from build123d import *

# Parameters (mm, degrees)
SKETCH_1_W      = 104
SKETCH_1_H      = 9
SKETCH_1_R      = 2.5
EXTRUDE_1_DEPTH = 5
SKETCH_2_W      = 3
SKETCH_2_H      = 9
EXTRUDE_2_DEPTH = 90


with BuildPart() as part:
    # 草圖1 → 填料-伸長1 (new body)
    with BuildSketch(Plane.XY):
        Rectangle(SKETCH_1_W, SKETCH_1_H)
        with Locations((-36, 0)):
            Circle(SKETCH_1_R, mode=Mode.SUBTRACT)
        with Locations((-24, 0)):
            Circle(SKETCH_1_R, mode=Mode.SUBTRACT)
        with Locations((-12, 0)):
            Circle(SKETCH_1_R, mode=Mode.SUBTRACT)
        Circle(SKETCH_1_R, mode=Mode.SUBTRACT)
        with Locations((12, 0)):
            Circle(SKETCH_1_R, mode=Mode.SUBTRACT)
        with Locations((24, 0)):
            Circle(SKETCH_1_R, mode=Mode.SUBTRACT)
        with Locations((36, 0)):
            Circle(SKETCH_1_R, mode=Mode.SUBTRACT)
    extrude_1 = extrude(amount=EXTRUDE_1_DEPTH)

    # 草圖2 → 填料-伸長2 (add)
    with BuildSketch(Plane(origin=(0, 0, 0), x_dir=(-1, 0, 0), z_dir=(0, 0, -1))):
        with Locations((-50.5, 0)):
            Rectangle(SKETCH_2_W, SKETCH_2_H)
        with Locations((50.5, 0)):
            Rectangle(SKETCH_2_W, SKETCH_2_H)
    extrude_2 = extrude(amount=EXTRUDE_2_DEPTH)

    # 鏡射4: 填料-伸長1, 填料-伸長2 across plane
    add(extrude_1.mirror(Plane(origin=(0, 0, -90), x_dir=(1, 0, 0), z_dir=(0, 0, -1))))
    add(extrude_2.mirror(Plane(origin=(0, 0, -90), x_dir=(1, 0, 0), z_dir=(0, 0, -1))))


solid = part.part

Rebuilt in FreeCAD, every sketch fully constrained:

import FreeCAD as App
import Part
import Sketcher

V = App.Vector
Q = App.Units.Quantity


def add_polygon(sketch, points):
    """Adds a closed chain of lines whose ends are joined by coincident constraints."""
    first, n = sketch.GeometryCount, len(points)
    for a, b in zip(points, points[1:] + points[:1]):
        sketch.addGeometry(Part.LineSegment(App.Vector(*a, 0), App.Vector(*b, 0)), False)
    for i in range(n):
        sketch.addConstraint(Sketcher.Constraint("Coincident", first + i, 2, first + (i + 1) % n, 1))

doc = App.newDocument("Part")
body = doc.addObject("PartDesign::Body", "Body")

sketch1 = body.newObject("Sketcher::SketchObject", "Sketch")
sketch1.AttachmentSupport = (doc.getObject("XY_Plane"), [""])
sketch1.MapMode = "FlatFace"
add_polygon(sketch1, [(-52, 4.5), (-52, -4.5), (52, -4.5), (52, 4.5)])
sketch1.addGeometry(Part.Circle(V(-36, 0, 0), V(0, 0, 1), 2.5), False)
sketch1.addGeometry(Part.Circle(V(-24, 0, 0), V(0, 0, 1), 2.5), False)
sketch1.addGeometry(Part.Circle(V(-12, 0, 0), V(0, 0, 1), 2.5), False)
sketch1.addGeometry(Part.Circle(V(0, 0, 0), V(0, 0, 1), 2.5), False)
sketch1.addGeometry(Part.Circle(V(12, 0, 0), V(0, 0, 1), 2.5), False)
sketch1.addGeometry(Part.Circle(V(24, 0, 0), V(0, 0, 1), 2.5), False)
sketch1.addGeometry(Part.Circle(V(36, 0, 0), V(0, 0, 1), 2.5), False)
sketch1.addConstraint([
    Sketcher.Constraint("Vertical", 0),
    Sketcher.Constraint("Horizontal", 1),
    Sketcher.Constraint("Vertical", 2),
    Sketcher.Constraint("Horizontal", 3),
    Sketcher.Constraint("Coincident", 7, 3, -1, 1),
    Sketcher.Constraint("Equal", 4, 5),
    Sketcher.Constraint("Equal", 5, 6),
    Sketcher.Constraint("Equal", 6, 7),
    Sketcher.Constraint("Equal", 7, 8),
    Sketcher.Constraint("Equal", 8, 9),
    Sketcher.Constraint("Equal", 9, 10),
    Sketcher.Constraint("Symmetric", 6, 3, 8, 3, -1, 1),
    Sketcher.Constraint("Symmetric", 5, 3, 9, 3, -1, 1),
    Sketcher.Constraint("Symmetric", 4, 3, 10, 3, -1, 1),
    Sketcher.Constraint("Symmetric", 0, 2, 2, 2, -1, 1),
    Sketcher.Constraint("PointOnObject", 4, 3, -1),
    Sketcher.Constraint("PointOnObject", 5, 3, -1),
    Sketcher.Constraint("PointOnObject", 6, 3, -1),
    Sketcher.Constraint("Diameter", 4, Q("5 mm")),
    Sketcher.Constraint("DistanceX", 1, 1, 1, 2, Q("104 mm")),
    Sketcher.Constraint("DistanceY", 0, 2, 0, 1, Q("9 mm")),
    Sketcher.Constraint("DistanceX", 4, 3, -1, 1, Q("36 mm")),
    Sketcher.Constraint("DistanceX", 5, 3, -1, 1, Q("24 mm")),
    Sketcher.Constraint("DistanceX", 6, 3, -1, 1, Q("12 mm")),
])
pad1 = body.newObject("PartDesign::Pad", "Pad")
pad1.Profile = sketch1
pad1.Length = 5

sketch2 = body.newObject("Sketcher::SketchObject", "Sketch001")
sketch2.AttachmentSupport = (doc.getObject("XY_Plane"), [""])
sketch2.MapMode = "FlatFace"
add_polygon(sketch2, [(52, 4.5), (52, -4.5), (49, -4.5), (49, 4.5)])
add_polygon(sketch2, [(-49, 4.5), (-49, -4.5), (-52, -4.5), (-52, 4.5)])
sketch2.addConstraint([
    Sketcher.Constraint("Vertical", 0),
    Sketcher.Constraint("Horizontal", 1),
    Sketcher.Constraint("Vertical", 2),
    Sketcher.Constraint("Horizontal", 3),
    Sketcher.Constraint("Vertical", 4),
    Sketcher.Constraint("Horizontal", 5),
    Sketcher.Constraint("Vertical", 6),
    Sketcher.Constraint("Horizontal", 7),
    Sketcher.Constraint("Symmetric", 2, 2, 4, 2, -1, 1),
    Sketcher.Constraint("Symmetric", 0, 2, 6, 2, -1, 1),
    Sketcher.Constraint("Horizontal", 1, 2, 4, 2),
    Sketcher.Constraint("DistanceX", 1, 2, 1, 1, Q("3 mm")),
    Sketcher.Constraint("DistanceY", 0, 2, 0, 1, Q("9 mm")),
    Sketcher.Constraint("DistanceX", -1, 1, 0, 2, Q("52 mm")),
])
pad2 = body.newObject("PartDesign::Pad", "Pad001")
pad2.Profile = sketch2
pad2.Length = 90
pad2.Reversed = True
doc.recompute()

datumplane = body.newObject("PartDesign::Plane", "DatumPlane")
datumplane.AttachmentSupport = (doc.getObject("XY_Plane"), [""])
datumplane.MapMode = "FlatFace"
datumplane.AttachmentOffset = App.Placement(V(0, 0, -90), App.Rotation())
mirrored = body.newObject("PartDesign::Mirrored", "Mirrored")
mirrored.Originals = [pad1, pad2]
mirrored.MirrorPlane = (datumplane, [""])
body.Tip = mirrored

doc.recompute()
